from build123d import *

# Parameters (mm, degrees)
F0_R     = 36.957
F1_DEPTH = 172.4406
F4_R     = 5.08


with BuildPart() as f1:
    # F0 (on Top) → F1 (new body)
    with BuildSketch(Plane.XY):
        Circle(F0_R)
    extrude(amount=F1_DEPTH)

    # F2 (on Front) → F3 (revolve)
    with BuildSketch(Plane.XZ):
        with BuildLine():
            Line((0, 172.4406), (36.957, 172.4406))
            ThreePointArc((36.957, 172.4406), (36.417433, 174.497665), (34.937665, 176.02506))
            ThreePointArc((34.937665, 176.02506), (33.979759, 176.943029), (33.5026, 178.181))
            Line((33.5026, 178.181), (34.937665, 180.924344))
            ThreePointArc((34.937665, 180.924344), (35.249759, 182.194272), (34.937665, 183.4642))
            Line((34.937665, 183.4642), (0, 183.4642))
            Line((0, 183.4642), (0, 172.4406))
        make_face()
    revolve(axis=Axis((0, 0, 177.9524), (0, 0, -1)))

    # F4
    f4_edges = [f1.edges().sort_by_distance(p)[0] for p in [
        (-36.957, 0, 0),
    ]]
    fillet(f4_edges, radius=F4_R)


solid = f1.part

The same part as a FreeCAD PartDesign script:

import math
import FreeCAD as App
import Part
import Sketcher
Q = App.Units.Quantity


def edges_at(feature, points):
    """Names of the edges that pass closest to the given points."""
    edges = feature.Shape.Edges
    near = lambda p: min(range(len(edges)), key=lambda i: edges[i].distToShape(Part.Vertex(*p))[0])
    return sorted({f"Edge{near(p) + 1}" for p in points})

doc = App.newDocument("Part")
body = doc.addObject("PartDesign::Body", "Body")

# Sketch on XY plane
sketch1 = body.newObject("Sketcher::SketchObject", "Sketch")
sketch1.AttachmentSupport = (doc.getObject("XY_Plane"), [""])
sketch1.MapMode = "FlatFace"
sketch1.addGeometry(Part.Circle(App.Vector(0, 0, 0), App.Vector(0, 0, 1), 37), False)
sketch1.addConstraint([
    Sketcher.Constraint("Coincident", 0, 3, -1, 1),
    Sketcher.Constraint("Diameter", 0, Q("2.91 in")),
])
pad1 = body.newObject("PartDesign::Pad", "Pad")
pad1.Profile = sketch1
pad1.Length = Q("6.789 in")

# Sketch on XZ plane
sketch2 = body.newObject("Sketcher::SketchObject", "Sketch001")
sketch2.AttachmentSupport = (doc.getObject("XZ_Plane"), [""])
sketch2.MapMode = "FlatFace"
sketch2.addGeometry([
    Part.LineSegment(App.Vector(0, 172.4, 0), App.Vector(37, 172.4, 0)),  # 0
    Part.ArcOfCircle(Part.Circle(App.Vector(32.8, 172.4, 0), App.Vector(0, 0, 1), 4.2), math.radians(0), math.radians(59)),  # 1
    Part.ArcOfCircle(Part.Circle(App.Vector(36.5, 178.6, 0), App.Vector(0, 0, 1), 3), math.radians(-171), math.radians(-121)),  # 2
    Part.LineSegment(App.Vector(33.5, 178.2, 0), App.Vector(34.9, 180.9, 0)),  # 3
    Part.ArcOfCircle(Part.Circle(App.Vector(32.5, 182.2, 0), App.Vector(0, 0, 1), 2.7), math.radians(-28), math.radians(28)),  # 4
    Part.LineSegment(App.Vector(34.9, 183.5, 0), App.Vector(0, 183.5, 0)),  # 5
    Part.LineSegment(App.Vector(0, 183.5, 0), App.Vector(0, 172.4, 0)),  # 6
], False)
sketch2.addConstraint([
    Sketcher.Constraint("Coincident", 0, 2, 1, 1),
    Sketcher.Constraint("Tangent", 1, 2, 2, 2),
    Sketcher.Constraint("Coincident", 2, 1, 3, 1),
    Sketcher.Constraint("Tangent", 3, 2, 4, 1),
    Sketcher.Constraint("Coincident", 4, 2, 5, 1),
    Sketcher.Constraint("Coincident", 5, 2, 6, 1),
    Sketcher.Constraint("Coincident", 6, 2, 0, 1),
    Sketcher.Constraint("Horizontal", 0),
    Sketcher.Constraint("Horizontal", 5),
    Sketcher.Constraint("Vertical", 6),
    Sketcher.Constraint("PointOnObject", 5, 2, -2),
    Sketcher.Constraint("Horizontal", 1, 3, 0, 2),
    Sketcher.Constraint("Vertical", 1, 2, 3, 2),
    Sketcher.Constraint("Vertical", 3, 2, 4, 2),
    Sketcher.Constraint("Radius", 2, Q("0.1199999 in")),
    Sketcher.Constraint("Radius", 1, Q("0.1650001 in")),
    Sketcher.Constraint("DistanceX", 0, 1, 0, 2, Q("1.455 in")),
    Sketcher.Constraint("DistanceY", 6, 2, 6, 1, Q("0.434 in")),
    Sketcher.Constraint("DistanceY", -1, 1, 1, 3, Q("6.789 in")),
    Sketcher.Constraint("DistanceX", -1, 1, 2, 1, Q("1.319 in")),
    Sketcher.Constraint("DistanceY", -1, 1, 2, 1, Q("7.015 in")),
    Sketcher.Constraint("Radius", 4, Q("2.739751 mm")),
])
revolution = body.newObject("PartDesign::Revolution", "Revolution")
revolution.Profile = sketch2
revolution.ReferenceAxis = (sketch2, ["V_Axis"])
revolution.Angle = 360
doc.recompute()

fillet = body.newObject("PartDesign::Fillet", "Fillet")
fillet.Base = (revolution, edges_at(revolution, [(-36.957, 0, 0)]))
fillet.Radius = Q("0.2 in")

doc.recompute()
